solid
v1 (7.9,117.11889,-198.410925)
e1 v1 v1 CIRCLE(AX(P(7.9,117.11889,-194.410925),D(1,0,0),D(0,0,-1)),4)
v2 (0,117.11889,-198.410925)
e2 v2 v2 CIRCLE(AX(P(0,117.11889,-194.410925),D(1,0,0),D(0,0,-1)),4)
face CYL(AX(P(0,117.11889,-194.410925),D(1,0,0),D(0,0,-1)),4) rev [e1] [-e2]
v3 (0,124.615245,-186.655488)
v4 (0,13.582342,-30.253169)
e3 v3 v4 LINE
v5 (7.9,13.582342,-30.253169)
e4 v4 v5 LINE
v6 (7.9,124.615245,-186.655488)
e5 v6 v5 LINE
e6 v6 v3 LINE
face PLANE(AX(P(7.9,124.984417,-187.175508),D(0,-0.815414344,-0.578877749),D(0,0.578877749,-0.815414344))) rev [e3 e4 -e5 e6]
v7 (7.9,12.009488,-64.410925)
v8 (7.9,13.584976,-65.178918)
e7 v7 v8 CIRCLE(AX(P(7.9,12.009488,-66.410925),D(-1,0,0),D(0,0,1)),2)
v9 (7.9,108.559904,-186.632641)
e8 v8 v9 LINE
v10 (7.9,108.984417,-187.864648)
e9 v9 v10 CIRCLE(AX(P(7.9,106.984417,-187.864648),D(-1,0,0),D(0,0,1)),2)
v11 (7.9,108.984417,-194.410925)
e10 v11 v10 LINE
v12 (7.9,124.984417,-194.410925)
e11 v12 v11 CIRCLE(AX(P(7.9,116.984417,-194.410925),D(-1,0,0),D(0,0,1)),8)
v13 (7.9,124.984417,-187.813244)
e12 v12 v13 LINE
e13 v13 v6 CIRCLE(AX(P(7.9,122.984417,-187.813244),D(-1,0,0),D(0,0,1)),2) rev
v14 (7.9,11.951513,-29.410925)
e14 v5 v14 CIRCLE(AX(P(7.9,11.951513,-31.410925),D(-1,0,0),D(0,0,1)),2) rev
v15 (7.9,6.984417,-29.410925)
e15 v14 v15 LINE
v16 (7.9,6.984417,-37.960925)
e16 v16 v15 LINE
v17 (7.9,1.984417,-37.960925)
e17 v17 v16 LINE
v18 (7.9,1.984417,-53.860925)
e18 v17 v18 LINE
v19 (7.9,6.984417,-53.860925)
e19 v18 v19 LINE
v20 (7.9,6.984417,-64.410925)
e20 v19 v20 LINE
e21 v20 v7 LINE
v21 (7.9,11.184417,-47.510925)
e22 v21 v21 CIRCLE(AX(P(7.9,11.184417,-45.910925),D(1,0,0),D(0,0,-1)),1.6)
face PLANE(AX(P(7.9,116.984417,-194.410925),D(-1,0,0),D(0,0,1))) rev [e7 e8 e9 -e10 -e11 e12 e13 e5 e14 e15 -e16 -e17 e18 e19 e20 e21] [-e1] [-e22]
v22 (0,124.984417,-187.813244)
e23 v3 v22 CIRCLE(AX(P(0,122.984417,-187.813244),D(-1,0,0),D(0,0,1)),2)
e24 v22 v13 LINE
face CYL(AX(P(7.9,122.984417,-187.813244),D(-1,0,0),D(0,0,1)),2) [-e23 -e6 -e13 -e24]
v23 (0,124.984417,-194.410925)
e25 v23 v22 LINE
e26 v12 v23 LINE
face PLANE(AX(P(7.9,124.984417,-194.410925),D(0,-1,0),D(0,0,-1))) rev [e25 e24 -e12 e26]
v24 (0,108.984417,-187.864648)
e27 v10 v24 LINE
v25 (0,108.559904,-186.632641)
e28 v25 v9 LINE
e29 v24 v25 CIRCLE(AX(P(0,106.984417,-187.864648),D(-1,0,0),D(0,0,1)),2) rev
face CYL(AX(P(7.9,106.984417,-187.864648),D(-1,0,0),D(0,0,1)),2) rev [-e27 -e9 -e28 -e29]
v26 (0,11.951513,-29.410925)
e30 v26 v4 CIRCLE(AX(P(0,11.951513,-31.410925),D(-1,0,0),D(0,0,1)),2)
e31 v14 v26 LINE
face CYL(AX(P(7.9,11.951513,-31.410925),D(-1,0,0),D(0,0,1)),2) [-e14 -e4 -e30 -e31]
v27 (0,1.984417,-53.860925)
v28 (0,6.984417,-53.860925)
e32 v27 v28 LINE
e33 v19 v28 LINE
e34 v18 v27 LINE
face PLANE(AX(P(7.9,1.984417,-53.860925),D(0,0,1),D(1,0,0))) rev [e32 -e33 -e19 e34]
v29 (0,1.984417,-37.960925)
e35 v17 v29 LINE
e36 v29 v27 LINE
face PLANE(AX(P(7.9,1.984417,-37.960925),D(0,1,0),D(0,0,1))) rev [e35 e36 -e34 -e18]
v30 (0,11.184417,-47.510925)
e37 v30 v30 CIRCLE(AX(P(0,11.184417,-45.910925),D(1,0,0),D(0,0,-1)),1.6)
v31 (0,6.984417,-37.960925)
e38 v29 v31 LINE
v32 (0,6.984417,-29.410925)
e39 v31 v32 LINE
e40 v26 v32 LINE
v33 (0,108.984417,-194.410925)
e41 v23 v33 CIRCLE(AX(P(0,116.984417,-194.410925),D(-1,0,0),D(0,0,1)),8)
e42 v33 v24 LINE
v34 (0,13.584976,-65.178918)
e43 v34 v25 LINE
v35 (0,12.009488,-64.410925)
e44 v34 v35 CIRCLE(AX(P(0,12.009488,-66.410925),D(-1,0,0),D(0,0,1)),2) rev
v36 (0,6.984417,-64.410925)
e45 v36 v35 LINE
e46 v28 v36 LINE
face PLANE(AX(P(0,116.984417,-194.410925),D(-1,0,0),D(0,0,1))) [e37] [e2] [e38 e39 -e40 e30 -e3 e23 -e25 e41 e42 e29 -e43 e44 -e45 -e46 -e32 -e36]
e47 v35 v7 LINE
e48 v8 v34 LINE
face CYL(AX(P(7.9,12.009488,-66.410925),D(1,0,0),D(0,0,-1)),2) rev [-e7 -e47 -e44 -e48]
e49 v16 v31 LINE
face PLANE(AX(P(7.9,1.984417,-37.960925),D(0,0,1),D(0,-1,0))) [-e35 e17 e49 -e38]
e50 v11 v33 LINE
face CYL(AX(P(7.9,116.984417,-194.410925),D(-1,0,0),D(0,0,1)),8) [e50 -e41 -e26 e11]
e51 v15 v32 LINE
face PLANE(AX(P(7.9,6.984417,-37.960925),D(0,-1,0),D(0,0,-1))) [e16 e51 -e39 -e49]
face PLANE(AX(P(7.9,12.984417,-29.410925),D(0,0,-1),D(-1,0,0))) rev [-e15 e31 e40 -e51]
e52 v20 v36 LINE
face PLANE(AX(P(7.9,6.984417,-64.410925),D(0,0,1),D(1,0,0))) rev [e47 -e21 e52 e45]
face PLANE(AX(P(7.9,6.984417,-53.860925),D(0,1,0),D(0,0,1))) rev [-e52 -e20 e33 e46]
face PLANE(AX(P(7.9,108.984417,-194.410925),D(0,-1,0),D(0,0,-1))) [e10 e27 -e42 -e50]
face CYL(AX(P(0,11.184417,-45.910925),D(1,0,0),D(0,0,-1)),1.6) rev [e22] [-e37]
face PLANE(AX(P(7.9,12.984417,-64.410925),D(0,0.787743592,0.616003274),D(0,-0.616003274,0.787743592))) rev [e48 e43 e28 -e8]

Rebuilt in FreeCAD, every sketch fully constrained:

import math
import FreeCAD as App
import Part
import Sketcher
from FreeCAD import Vector


def edges_at(feature, points):
    """Names of the edges that pass closest to the given points."""
    edges = feature.Shape.Edges
    near = lambda p: min(range(len(edges)), key=lambda i: edges[i].distToShape(Part.Vertex(*p))[0])
    return sorted({f"Edge{near(p) + 1}" for p in points})

doc = App.newDocument("Part")
body = doc.addObject("PartDesign::Body", "Body")

# Sketch on YZ plane
sketch1 = doc.addObject("Sketcher::SketchObject", "Sketch")
body.addObject(sketch1)
sketch1.AttachmentSupport = (doc.YZ_Plane, [""])
sketch1.MapMode = "FlatFace"
sketch1.addGeometry([
    Part.LineSegment(Vector(7, -38, 0), Vector(2, -38, 0)),  # 0
    Part.LineSegment(Vector(2, -38, 0), Vector(2, -54, 0)),  # 1
    Part.LineSegment(Vector(2, -54, 0), Vector(7, -54, 0)),  # 2
    Part.LineSegment(Vector(7, -54, 0), Vector(7, -64, 0)),  # 3
    Part.LineSegment(Vector(7, -64, 0), Vector(13, -64, 0)),  # 4
    Part.LineSegment(Vector(13, -64, 0), Vector(109, -187, 0)),  # 5
    Part.LineSegment(Vector(109, -187, 0), Vector(109, -194, 0)),  # 6
    Part.ArcOfCircle(Part.Circle(Vector(117, -194, 0), Vector(0, 0, 1), 8), math.radians(180), math.radians(360)),  # 7
    Part.LineSegment(Vector(125, -194, 0), Vector(125, -187, 0)),  # 8
    Part.LineSegment(Vector(125, -187, 0), Vector(13, -29, 0)),  # 9
    Part.LineSegment(Vector(13, -29, 0), Vector(7, -29, 0)),  # 10
    Part.LineSegment(Vector(7, -29, 0), Vector(7, -38, 0)),  # 11
], False)
sketch1.addConstraint([
    Sketcher.Constraint("Coincident", 0, 2, 1, 1),
    Sketcher.Constraint("Coincident", 1, 2, 2, 1),
    Sketcher.Constraint("Coincident", 2, 2, 3, 1),
    Sketcher.Constraint("Coincident", 3, 2, 4, 1),
    Sketcher.Constraint("Coincident", 4, 2, 5, 1),
    Sketcher.Constraint("Coincident", 5, 2, 6, 1),
    Sketcher.Constraint("Tangent", 6, 2, 7, 1),
    Sketcher.Constraint("Tangent", 7, 2, 8, 1),
    Sketcher.Constraint("Coincident", 8, 2, 9, 1),
    Sketcher.Constraint("Coincident", 9, 2, 10, 1),
    Sketcher.Constraint("Coincident", 10, 2, 11, 1),
    Sketcher.Constraint("Coincident", 11, 2, 0, 1),
    Sketcher.Constraint("Horizontal", 0),
    Sketcher.Constraint("Vertical", 1),
    Sketcher.Constraint("Horizontal", 2),
    Sketcher.Constraint("Vertical", 3),
    Sketcher.Constraint("Horizontal", 4),
    Sketcher.Constraint("Vertical", 6),
    Sketcher.Constraint("Vertical", 8),
    Sketcher.Constraint("Horizontal", 10),
    Sketcher.Constraint("Vertical", 11),
    Sketcher.Constraint("Horizontal", 5, 2, 8, 2),
    Sketcher.Constraint("Vertical", 4, 2, 9, 2),
    Sketcher.Constraint("Vertical", 3, 2, 10, 2),
    Sketcher.Constraint("Radius", 7, 8.0),
    Sketcher.Constraint("DistanceX", 0, 2, 0, 1, 5.0),
    Sketcher.Constraint("DistanceX", 4, 1, 4, 2, 6.0),
    Sketcher.Constraint("DistanceY", 1, 2, 1, 1, 15.9),
    Sketcher.Constraint("DistanceX", 0, 2, 7, 3, 115.0),
    Sketcher.Constraint("DistanceY", 7, 3, 3, 2, 130.0),
    Sketcher.Constraint("DistanceY", 4, 2, 9, 2, 35.0),
    Sketcher.Constraint("DistanceY", 3, 2, 3, 1, 10.55),
    Sketcher.Constraint("Distance", 9, 193.477812),
    Sketcher.Constraint("DistanceX", -1, 1, 7, 3, 116.984417),
    Sketcher.Constraint("DistanceY", 7, 3, -1, 1, 194.410925),
])
pad1 = doc.addObject("PartDesign::Pad", "Pad")
body.addObject(pad1)
pad1.Profile = sketch1
pad1.Length = 7.9

# Sketch on YZ plane
sketch2 = doc.addObject("Sketcher::SketchObject", "Sketch001")
body.addObject(sketch2)
sketch2.AttachmentSupport = (doc.YZ_Plane, [""])
sketch2.MapMode = "FlatFace"
sketch2.AttachmentOffset = App.Placement(Vector(0, 0, 7.9), App.Rotation())
sketch2.addGeometry([
    Part.Circle(Vector(11.2, -45.9, 0), Vector(0, 0, 1), 1.6),
    Part.Circle(Vector(117.1, -194.4, 0), Vector(0, 0, 1), 4),
], False)
sketch2.addConstraint([
    Sketcher.Constraint("Diameter", 1, 8.0),
    Sketcher.Constraint("Diameter", 0, 3.2),
    Sketcher.Constraint("DistanceY", 1, 3, 0, 3, 148.5),
    Sketcher.Constraint("DistanceX", -1, 1, 1, 3, 117.11889),
    Sketcher.Constraint("DistanceX", -1, 1, 0, 3, 11.184417),
    Sketcher.Constraint("DistanceY", 0, 3, -1, 1, 45.910925),
])
pocket1 = doc.addObject("PartDesign::Pocket", "Pocket")
body.addObject(pocket1)
pocket1.Profile = sketch2
pocket1.Type = "ThroughAll"
doc.recompute()

fillet = doc.addObject("PartDesign::Fillet", "Fillet")
body.addObject(fillet)
fillet.Base = (pocket1, edges_at(pocket1, [
    (3.95, 12.984, -64.411),
    (3.95, 108.984, -187.176),
    (3.95, 124.984, -187.176),
    (3.95, 12.984, -29.411),
]))
fillet.Radius = 2

doc.recompute()
